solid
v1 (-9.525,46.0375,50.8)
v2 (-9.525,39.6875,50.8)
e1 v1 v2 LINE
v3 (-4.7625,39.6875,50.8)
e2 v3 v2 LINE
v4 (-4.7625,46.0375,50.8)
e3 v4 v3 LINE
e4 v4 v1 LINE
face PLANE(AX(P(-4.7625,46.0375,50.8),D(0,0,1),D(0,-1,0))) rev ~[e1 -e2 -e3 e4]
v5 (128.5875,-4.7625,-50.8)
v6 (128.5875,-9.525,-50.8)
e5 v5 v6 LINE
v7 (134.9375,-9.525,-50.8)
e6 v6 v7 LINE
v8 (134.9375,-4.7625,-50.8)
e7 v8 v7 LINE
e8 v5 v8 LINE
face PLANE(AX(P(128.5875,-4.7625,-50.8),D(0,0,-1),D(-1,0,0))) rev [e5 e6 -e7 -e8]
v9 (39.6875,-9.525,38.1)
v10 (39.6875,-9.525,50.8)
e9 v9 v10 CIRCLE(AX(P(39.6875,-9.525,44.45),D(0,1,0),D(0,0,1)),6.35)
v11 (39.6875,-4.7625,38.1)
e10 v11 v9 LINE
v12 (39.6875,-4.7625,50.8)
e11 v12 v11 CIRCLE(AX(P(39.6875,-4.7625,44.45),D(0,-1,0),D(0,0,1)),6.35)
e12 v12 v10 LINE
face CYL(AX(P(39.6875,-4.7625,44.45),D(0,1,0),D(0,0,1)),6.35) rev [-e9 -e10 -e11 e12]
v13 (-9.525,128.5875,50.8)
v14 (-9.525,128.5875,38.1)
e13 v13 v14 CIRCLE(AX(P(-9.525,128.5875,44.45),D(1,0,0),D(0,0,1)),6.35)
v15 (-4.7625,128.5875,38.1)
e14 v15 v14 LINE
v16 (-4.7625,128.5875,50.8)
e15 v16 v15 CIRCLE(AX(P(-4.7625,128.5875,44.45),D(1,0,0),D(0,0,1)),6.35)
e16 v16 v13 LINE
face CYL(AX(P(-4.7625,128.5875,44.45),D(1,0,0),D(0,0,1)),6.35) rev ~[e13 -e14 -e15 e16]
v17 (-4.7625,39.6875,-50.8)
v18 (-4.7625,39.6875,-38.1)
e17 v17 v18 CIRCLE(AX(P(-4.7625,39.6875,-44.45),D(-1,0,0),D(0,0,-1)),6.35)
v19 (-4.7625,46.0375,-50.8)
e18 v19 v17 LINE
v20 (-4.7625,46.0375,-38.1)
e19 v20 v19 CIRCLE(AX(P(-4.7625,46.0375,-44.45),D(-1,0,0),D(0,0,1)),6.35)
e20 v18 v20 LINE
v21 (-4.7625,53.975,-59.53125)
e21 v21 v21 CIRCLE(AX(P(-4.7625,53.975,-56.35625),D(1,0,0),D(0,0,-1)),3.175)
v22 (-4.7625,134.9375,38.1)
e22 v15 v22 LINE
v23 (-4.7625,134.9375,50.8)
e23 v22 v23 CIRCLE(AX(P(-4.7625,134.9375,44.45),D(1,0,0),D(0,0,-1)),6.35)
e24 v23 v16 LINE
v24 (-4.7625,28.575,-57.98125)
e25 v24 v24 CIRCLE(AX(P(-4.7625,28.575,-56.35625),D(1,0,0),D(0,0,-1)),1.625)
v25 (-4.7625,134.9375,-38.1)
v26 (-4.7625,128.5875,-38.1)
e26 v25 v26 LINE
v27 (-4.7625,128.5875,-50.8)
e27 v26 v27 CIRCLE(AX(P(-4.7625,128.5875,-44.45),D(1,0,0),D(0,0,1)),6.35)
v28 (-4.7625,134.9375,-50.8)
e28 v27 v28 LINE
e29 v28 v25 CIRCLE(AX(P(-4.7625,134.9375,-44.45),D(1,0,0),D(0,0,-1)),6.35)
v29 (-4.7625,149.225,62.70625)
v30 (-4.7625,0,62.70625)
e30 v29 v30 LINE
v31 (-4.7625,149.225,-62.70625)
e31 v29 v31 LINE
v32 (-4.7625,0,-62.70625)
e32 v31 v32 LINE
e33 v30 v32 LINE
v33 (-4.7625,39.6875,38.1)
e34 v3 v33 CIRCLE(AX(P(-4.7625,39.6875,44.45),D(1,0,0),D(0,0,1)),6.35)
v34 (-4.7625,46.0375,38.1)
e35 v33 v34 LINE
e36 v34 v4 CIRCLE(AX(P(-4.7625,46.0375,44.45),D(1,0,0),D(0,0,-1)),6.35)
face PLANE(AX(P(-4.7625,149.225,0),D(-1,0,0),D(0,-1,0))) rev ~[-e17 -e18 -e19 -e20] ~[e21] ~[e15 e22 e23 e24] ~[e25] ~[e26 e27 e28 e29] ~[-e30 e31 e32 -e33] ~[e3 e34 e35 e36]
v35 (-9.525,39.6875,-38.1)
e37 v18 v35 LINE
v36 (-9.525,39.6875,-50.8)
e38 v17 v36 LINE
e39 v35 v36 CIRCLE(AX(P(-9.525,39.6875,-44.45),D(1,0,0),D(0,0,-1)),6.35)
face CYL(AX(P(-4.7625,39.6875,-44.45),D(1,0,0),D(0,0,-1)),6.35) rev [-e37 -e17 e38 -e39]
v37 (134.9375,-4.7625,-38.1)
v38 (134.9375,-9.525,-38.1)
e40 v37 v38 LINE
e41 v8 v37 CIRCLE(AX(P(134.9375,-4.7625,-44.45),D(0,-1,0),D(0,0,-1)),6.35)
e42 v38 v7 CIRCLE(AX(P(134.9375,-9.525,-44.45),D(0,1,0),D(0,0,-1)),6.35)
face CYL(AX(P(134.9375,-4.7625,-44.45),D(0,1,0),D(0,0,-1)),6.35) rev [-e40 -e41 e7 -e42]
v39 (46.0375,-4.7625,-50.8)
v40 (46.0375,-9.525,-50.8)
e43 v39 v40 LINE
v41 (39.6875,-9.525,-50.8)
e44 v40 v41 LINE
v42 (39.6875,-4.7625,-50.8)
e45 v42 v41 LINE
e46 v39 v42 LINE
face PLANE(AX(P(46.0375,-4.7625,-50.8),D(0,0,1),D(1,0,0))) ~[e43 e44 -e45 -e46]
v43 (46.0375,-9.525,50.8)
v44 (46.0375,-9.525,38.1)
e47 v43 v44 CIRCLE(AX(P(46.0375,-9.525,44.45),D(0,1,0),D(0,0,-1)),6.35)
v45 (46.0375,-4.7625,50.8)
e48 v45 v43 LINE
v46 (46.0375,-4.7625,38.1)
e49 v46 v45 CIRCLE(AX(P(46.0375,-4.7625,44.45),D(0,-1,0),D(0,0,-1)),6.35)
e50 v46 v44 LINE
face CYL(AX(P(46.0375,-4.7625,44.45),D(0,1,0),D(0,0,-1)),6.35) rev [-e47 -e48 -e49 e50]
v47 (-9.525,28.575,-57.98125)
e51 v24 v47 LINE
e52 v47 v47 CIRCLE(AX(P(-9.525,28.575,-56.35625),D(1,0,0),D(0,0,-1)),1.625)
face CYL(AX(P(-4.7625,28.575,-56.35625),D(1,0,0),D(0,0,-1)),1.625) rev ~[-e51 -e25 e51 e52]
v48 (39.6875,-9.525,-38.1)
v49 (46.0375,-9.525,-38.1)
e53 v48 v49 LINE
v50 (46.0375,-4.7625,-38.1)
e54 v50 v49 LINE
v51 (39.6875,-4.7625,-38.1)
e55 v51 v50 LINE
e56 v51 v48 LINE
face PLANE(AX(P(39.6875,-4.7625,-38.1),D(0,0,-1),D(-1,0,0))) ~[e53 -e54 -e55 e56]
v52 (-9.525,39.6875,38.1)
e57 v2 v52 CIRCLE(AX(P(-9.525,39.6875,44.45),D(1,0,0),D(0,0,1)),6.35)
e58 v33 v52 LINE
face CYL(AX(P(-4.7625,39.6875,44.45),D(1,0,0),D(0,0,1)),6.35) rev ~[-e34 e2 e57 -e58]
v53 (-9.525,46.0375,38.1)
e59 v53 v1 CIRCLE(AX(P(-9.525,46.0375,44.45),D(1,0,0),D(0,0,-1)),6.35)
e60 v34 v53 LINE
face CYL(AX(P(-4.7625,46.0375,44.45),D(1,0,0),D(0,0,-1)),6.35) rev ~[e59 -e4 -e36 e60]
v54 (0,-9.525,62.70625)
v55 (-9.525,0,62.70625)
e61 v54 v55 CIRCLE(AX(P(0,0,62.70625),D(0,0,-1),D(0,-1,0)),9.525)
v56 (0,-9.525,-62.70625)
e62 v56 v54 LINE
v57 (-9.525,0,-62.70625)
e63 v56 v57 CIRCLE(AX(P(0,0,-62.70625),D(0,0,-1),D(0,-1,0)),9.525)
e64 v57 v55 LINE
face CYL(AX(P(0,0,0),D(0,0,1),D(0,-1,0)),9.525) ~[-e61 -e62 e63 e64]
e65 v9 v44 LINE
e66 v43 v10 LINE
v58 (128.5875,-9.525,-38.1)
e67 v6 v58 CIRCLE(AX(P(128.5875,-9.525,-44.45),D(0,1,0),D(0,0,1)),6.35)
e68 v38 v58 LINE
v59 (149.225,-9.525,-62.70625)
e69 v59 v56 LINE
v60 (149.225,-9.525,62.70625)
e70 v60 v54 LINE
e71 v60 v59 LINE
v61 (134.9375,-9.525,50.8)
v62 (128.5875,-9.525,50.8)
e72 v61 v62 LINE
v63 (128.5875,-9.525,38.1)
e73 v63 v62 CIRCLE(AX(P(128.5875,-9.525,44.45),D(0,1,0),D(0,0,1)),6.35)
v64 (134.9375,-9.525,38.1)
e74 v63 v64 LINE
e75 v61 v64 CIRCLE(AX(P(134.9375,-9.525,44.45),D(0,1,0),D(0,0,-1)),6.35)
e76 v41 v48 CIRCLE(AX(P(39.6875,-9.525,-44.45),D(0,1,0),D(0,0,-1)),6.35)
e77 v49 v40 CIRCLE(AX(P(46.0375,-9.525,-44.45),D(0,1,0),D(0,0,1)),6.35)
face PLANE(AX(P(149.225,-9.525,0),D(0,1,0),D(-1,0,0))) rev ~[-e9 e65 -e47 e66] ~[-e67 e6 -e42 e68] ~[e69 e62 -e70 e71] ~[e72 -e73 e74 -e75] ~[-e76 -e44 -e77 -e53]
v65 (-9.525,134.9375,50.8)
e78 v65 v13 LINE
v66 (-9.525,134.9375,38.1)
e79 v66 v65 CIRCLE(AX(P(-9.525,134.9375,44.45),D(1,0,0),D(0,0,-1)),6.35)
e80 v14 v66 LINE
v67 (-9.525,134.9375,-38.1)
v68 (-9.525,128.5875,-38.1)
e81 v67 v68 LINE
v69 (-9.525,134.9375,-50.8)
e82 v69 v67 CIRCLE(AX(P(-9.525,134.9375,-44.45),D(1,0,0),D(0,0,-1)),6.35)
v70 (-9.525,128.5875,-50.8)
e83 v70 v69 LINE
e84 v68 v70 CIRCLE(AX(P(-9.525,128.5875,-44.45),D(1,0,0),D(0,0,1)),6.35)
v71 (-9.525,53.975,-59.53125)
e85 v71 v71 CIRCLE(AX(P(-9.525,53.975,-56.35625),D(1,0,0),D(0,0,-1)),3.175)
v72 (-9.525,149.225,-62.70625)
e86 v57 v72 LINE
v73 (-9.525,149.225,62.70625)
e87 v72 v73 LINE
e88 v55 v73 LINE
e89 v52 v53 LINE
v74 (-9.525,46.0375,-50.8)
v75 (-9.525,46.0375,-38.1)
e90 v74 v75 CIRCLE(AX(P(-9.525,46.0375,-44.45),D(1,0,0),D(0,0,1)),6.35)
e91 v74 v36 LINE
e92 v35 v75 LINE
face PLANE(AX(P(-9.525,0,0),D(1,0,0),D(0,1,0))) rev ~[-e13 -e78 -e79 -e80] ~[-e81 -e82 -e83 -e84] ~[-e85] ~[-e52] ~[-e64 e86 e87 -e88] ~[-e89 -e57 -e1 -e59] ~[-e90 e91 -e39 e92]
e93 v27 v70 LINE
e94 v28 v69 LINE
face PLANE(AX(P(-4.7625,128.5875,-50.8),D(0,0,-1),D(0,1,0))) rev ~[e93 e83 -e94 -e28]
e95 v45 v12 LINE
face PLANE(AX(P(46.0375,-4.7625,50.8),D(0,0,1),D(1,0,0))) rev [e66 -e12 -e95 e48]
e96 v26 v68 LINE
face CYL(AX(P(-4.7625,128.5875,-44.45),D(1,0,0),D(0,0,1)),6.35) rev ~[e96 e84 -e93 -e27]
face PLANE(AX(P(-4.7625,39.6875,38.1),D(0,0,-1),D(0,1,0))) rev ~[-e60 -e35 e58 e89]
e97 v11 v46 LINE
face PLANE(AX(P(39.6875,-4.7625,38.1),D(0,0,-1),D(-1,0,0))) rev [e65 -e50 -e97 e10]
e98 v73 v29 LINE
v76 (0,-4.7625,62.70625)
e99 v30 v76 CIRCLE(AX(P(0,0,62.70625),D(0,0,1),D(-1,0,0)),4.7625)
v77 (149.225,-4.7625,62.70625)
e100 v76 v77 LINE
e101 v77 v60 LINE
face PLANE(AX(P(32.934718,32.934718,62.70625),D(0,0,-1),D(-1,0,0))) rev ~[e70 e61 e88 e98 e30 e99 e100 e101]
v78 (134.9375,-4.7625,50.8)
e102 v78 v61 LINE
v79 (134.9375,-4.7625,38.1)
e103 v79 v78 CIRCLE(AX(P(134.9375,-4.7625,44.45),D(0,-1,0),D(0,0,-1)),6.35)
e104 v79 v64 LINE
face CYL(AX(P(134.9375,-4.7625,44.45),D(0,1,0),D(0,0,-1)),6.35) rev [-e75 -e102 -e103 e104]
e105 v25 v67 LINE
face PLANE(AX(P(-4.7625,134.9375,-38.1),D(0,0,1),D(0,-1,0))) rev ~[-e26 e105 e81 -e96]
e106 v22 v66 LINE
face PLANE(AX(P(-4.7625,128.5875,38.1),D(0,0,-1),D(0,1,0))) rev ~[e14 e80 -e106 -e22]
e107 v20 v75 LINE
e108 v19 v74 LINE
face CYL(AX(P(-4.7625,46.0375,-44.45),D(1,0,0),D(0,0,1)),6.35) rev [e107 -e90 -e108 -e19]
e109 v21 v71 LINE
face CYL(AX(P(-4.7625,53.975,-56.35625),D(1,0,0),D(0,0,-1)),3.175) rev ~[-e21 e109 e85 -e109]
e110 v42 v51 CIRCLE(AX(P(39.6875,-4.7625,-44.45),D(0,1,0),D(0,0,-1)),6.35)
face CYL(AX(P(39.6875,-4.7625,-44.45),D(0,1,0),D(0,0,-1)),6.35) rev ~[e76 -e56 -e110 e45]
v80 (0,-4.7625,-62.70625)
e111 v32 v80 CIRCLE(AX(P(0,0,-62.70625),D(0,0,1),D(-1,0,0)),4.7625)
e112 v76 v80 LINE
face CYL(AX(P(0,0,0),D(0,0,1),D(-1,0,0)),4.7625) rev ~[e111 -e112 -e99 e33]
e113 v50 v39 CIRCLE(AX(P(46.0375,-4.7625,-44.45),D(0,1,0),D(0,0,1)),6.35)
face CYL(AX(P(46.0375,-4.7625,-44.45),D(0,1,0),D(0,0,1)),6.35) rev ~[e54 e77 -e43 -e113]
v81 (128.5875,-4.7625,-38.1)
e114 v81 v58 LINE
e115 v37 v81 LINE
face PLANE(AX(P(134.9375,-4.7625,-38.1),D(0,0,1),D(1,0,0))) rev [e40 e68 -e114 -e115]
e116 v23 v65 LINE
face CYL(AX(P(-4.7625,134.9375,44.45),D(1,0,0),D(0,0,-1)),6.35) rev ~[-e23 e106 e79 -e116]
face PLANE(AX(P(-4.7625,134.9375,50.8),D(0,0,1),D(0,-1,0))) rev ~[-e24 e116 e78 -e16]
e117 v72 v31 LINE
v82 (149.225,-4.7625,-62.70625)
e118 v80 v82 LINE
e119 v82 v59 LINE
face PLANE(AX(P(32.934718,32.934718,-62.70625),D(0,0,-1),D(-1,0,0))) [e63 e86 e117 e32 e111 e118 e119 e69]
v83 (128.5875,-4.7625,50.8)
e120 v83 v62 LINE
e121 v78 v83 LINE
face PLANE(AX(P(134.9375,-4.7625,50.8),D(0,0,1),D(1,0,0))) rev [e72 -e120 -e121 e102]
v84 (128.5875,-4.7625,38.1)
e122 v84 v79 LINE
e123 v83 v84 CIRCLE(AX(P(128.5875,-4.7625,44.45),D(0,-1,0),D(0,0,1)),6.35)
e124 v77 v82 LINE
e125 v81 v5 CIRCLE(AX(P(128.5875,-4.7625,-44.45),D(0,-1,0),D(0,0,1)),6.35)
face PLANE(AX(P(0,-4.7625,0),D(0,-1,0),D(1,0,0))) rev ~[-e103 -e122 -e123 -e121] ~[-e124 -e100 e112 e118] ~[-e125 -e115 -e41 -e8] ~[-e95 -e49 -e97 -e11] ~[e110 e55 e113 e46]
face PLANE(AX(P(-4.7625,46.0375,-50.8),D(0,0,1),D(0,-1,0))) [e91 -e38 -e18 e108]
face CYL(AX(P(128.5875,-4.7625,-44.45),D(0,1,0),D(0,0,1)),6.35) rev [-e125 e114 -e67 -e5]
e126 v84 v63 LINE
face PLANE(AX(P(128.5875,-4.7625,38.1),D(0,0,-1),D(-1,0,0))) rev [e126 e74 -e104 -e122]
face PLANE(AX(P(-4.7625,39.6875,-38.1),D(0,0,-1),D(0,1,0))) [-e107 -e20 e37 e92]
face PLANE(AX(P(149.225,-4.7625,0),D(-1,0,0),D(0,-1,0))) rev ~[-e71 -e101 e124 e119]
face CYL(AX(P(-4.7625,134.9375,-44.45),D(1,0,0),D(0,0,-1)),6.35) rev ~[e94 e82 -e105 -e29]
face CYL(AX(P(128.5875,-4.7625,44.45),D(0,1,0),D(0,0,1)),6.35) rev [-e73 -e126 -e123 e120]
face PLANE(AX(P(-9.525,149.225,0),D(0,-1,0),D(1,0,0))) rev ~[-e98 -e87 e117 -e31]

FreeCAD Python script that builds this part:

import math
import FreeCAD as App
import Part
import Sketcher

V = App.Vector
Q = App.Units.Quantity

doc = App.newDocument("Part")
body = doc.addObject("PartDesign::Body", "Body")

sketch1 = body.newObject("Sketcher::SketchObject", "Sketch")
sketch1.AttachmentSupport = (doc.getObject("XY_Plane"), [""])
sketch1.MapMode = "FlatFace"
sketch1.addGeometry([
    Part.LineSegment(V(-4.8, 149.2, 0), V(-9.5, 149.2, 0)),
    Part.LineSegment(V(-9.5, 149.2, 0), V(-9.5, 0, 0)),
    Part.ArcOfCircle(Part.Circle(V(0, 0, 0), V(0, 0, 1), 9.5), math.radians(180), math.radians(270)),
    Part.LineSegment(V(0, -9.5, 0), V(149.2, -9.5, 0)),
    Part.LineSegment(V(149.2, -9.5, 0), V(149.2, -4.8, 0)),
    Part.LineSegment(V(149.2, -4.8, 0), V(0, -4.8, 0)),
    Part.ArcOfCircle(Part.Circle(V(0, 0, 0), V(0, 0, 1), 4.8), math.radians(-180), math.radians(-90)),
    Part.LineSegment(V(-4.8, 0, 0), V(-4.8, 149.2, 0)),
], False)
sketch1.addConstraint([
    Sketcher.Constraint("Coincident", 0, 2, 1, 1),
    Sketcher.Constraint("Tangent", 1, 2, 2, 1),
    Sketcher.Constraint("Tangent", 2, 2, 3, 1),
    Sketcher.Constraint("Coincident", 3, 2, 4, 1),
    Sketcher.Constraint("Coincident", 4, 2, 5, 1),
    Sketcher.Constraint("Tangent", 5, 2, 6, 2),
    Sketcher.Constraint("Tangent", 6, 1, 7, 1),
    Sketcher.Constraint("Coincident", 7, 2, 0, 1),
    Sketcher.Constraint("Horizontal", 0),
    Sketcher.Constraint("Vertical", 1),
    Sketcher.Constraint("Horizontal", 3),
    Sketcher.Constraint("Vertical", 4),
    Sketcher.Constraint("Horizontal", 5),
    Sketcher.Constraint("Vertical", 7),
    Sketcher.Constraint("Coincident", 2, 3, -1, 1),
    Sketcher.Constraint("Coincident", 6, 3, -1, 1),
    Sketcher.Constraint("Equal", 5, 1),
    Sketcher.Constraint("Radius", 2, Q("0.375 in")),
    Sketcher.Constraint("Radius", 6, Q("0.1875 in")),
    Sketcher.Constraint("DistanceX", 3, 1, 3, 2, Q("5.875 in")),
])
pad1 = body.newObject("PartDesign::Pad", "Pad")
pad1.Profile = sketch1
pad1.Length = Q("4.9375 in")
pad1.Midplane = True

sketch2 = body.newObject("Sketcher::SketchObject", "Sketch001")
sketch2.AttachmentSupport = (doc.getObject("YZ_Plane"), [""])
sketch2.MapMode = "FlatFace"
sketch2.AttachmentOffset = App.Placement(V(0, 0, -0.1875 * 25.4), App.Rotation())
sketch2.addGeometry([
    Part.LineSegment(V(135, 51, 0), V(129, 51, 0)),
    Part.ArcOfCircle(Part.Circle(V(129, 44, 0), V(0, 0, 1), 6), math.radians(90), math.radians(270)),
    Part.LineSegment(V(129, 38, 0), V(135, 38, 0)),
    Part.ArcOfCircle(Part.Circle(V(135, 44, 0), V(0, 0, 1), 6), math.radians(-90), math.radians(90)),
    Part.LineSegment(V(46, 51, 0), V(40, 51, 0)),
    Part.ArcOfCircle(Part.Circle(V(40, 44, 0), V(0, 0, 1), 6), math.radians(90), math.radians(270)),
    Part.LineSegment(V(40, 38, 0), V(46, 38, 0)),
    Part.ArcOfCircle(Part.Circle(V(46, 44, 0), V(0, 0, 1), 6), math.radians(-90), math.radians(90)),
    Part.LineSegment(V(46, -38, 0), V(40, -38, 0)),
    Part.ArcOfCircle(Part.Circle(V(40, -44, 0), V(0, 0, 1), 6), math.radians(90), math.radians(270)),
    Part.LineSegment(V(40, -51, 0), V(46, -51, 0)),
    Part.ArcOfCircle(Part.Circle(V(46, -44, 0), V(0, 0, 1), 6), math.radians(-90), math.radians(90)),
    Part.LineSegment(V(135, -38, 0), V(129, -38, 0)),
    Part.ArcOfCircle(Part.Circle(V(129, -44, 0), V(0, 0, 1), 6), math.radians(90), math.radians(270)),
    Part.LineSegment(V(129, -51, 0), V(135, -51, 0)),
    Part.ArcOfCircle(Part.Circle(V(135, -44, 0), V(0, 0, 1), 6), math.radians(-90), math.radians(90)),
], False)
sketch2.addConstraint([
    Sketcher.Constraint("Tangent", 0, 2, 1, 1),
    Sketcher.Constraint("Tangent", 1, 2, 2, 1),
    Sketcher.Constraint("Tangent", 2, 2, 3, 1),
    Sketcher.Constraint("Tangent", 3, 2, 0, 1),
    Sketcher.Constraint("Tangent", 4, 2, 5, 1),
    Sketcher.Constraint("Tangent", 5, 2, 6, 1),
    Sketcher.Constraint("Tangent", 6, 2, 7, 1),
    Sketcher.Constraint("Tangent", 7, 2, 4, 1),
    Sketcher.Constraint("Tangent", 8, 2, 9, 1),
    Sketcher.Constraint("Tangent", 9, 2, 10, 1),
    Sketcher.Constraint("Tangent", 10, 2, 11, 1),
    Sketcher.Constraint("Tangent", 11, 2, 8, 1),
    Sketcher.Constraint("Tangent", 12, 2, 13, 1),
    Sketcher.Constraint("Tangent", 13, 2, 14, 1),
    Sketcher.Constraint("Tangent", 14, 2, 15, 1),
    Sketcher.Constraint("Tangent", 15, 2, 12, 1),
    Sketcher.Constraint("Horizontal", 0),
    Sketcher.Constraint("Horizontal", 2),
    Sketcher.Constraint("Horizontal", 4),
    Sketcher.Constraint("Horizontal", 6),
    Sketcher.Constraint("Horizontal", 8),
    Sketcher.Constraint("Horizontal", 10),
    Sketcher.Constraint("Horizontal", 12),
    Sketcher.Constraint("Horizontal", 14),
    Sketcher.Constraint("Equal", 3, 5),
    Sketcher.Constraint("Equal", 7, 9),
    Sketcher.Constraint("Equal", 11, 13),
    Sketcher.Constraint("Symmetric", 5, 3, 9, 3, -1),
    Sketcher.Constraint("Symmetric", 1, 3, 13, 3, -1),
    Sketcher.Constraint("Horizontal", 3, 3, 5, 3),
    Sketcher.Constraint("Vertical", 7, 3, 11, 3),
    Sketcher.Constraint("Vertical", 3, 3, 15, 3),
    Sketcher.Constraint("Equal", 2, 4),
    Sketcher.Constraint("Radius", 1, Q("0.25 in")),
    Sketcher.Constraint("DistanceY", -1, 1, 0, 2, Q("2 in")),
    Sketcher.Constraint("DistanceX", 0, 2, 0, 1, Q("0.25 in")),
    Sketcher.Constraint("DistanceX", 5, 3, 1, 3, Q("3.5 in")),
    Sketcher.Constraint("DistanceX", -1, 1, 1, 3, Q("5.0625 in")),
])
pocket1 = body.newObject("PartDesign::Pocket", "Pocket")
pocket1.Profile = sketch2
pocket1.Type = "ThroughAll"
doc.recompute()

datumplane = body.newObject("PartDesign::Plane", "DatumPlane")
datumplane.Placement = App.Placement(V(0, 0, 0), App.Rotation(V(-0.707106781, -0.707106781, 0), V(0, 0, -1), V(0.707106781, -0.707106781, 0), "ZXY"))
mirrored = body.newObject("PartDesign::Mirrored", "Mirrored")
mirrored.Originals = [pocket1]
mirrored.MirrorPlane = (datumplane, [""])
body.Tip = mirrored

sketch3 = body.newObject("Sketcher::SketchObject", "Sketch002")
sketch3.AttachmentSupport = (doc.getObject("YZ_Plane"), [""])
sketch3.MapMode = "FlatFace"
sketch3.AttachmentOffset = App.Placement(V(0, 0, -0.1875 * 25.4), App.Rotation())
sketch3.addGeometry([
    Part.Circle(V(28.6, -56.4, 0), V(0, 0, 1), 1.6),
    Part.Circle(V(54, -56.4, 0), V(0, 0, 1), 3.2),
], False)
sketch3.addConstraint([
    Sketcher.Constraint("Horizontal", 0, 3, 1, 3),
    Sketcher.Constraint("Diameter", 1, Q("0.25 in")),
    Sketcher.Constraint("DistanceX", 0, 3, 1, 3, Q("1 in")),
    Sketcher.Constraint("Diameter", 0, 3.25),
    Sketcher.Constraint("DistanceX", -1, 1, 0, 3, Q("1.125 in")),
    Sketcher.Constraint("DistanceY", 0, 3, -1, 1, Q("2.21875 in")),
])
pocket2 = body.newObject("PartDesign::Pocket", "Pocket001")
pocket2.Profile = sketch3
pocket2.Type = "ThroughAll"

doc.recompute()
